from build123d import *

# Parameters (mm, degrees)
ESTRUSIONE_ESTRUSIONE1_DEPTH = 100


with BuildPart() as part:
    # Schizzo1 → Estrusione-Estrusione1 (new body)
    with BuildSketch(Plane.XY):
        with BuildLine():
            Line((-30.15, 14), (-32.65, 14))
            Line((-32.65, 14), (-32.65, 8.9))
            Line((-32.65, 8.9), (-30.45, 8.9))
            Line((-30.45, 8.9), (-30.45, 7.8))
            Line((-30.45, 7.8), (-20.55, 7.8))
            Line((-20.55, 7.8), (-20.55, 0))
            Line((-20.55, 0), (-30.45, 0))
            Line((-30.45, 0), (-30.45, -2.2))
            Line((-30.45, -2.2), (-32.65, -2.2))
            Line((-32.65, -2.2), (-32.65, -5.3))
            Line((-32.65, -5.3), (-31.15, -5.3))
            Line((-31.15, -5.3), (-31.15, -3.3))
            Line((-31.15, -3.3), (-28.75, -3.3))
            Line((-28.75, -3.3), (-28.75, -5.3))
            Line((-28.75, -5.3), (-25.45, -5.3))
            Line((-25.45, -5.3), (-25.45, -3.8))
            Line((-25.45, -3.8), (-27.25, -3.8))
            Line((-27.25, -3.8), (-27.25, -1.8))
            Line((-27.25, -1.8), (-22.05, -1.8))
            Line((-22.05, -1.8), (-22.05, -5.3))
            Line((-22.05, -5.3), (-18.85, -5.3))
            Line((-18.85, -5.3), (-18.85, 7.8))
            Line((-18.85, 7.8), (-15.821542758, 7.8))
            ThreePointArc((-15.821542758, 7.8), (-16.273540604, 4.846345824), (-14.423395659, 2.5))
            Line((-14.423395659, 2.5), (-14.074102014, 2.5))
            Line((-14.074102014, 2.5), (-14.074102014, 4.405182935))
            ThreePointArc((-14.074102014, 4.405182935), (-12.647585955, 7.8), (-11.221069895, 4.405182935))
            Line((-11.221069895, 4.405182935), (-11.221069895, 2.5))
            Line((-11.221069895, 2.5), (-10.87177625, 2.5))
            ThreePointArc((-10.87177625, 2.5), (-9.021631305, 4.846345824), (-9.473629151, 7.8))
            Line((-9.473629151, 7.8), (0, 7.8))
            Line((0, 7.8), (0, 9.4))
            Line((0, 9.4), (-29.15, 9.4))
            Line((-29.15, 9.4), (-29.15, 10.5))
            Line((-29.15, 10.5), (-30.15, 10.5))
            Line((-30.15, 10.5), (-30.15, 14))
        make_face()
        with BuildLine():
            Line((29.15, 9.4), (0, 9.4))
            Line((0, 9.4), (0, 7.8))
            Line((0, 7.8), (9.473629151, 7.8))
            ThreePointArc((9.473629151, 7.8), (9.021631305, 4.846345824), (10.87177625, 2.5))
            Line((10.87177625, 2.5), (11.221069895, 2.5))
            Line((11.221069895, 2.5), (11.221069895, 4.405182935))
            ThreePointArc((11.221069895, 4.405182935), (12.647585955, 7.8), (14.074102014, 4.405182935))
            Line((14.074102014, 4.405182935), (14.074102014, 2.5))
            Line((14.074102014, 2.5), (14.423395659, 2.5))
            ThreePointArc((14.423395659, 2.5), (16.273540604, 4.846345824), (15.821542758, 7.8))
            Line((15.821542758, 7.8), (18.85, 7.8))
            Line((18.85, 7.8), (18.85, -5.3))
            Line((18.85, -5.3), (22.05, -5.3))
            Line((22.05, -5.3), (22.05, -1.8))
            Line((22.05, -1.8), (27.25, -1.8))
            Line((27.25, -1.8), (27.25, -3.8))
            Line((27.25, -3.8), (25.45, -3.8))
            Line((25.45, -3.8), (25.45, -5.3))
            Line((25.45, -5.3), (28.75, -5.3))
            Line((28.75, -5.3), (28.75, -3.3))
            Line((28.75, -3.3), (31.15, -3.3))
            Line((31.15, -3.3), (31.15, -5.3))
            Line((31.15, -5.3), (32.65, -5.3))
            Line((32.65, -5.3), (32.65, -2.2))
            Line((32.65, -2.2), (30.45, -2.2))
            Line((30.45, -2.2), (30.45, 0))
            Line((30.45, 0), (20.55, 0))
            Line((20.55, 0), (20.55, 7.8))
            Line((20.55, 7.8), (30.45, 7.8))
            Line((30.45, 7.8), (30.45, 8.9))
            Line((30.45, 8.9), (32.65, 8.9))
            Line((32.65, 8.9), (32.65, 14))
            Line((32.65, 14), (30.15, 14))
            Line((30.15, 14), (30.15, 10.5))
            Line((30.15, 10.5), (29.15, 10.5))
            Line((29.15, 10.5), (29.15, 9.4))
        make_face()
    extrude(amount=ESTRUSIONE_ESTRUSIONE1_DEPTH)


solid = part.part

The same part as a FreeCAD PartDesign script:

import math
import FreeCAD as App
import Part
import Sketcher

V = App.Vector
Q = App.Units.Quantity

doc = App.newDocument("Part")
params = doc.addObject("Spreadsheet::Sheet", "Params")
for row, (alias, value) in enumerate([
    ("sketch1_width", "1 mm"),
    ("sketch1_height", "2 mm"),
    ("sketch1_radius", "3.75 mm"),
    ("sketch1_width2", "2.5 mm"),
    ("sketch1_width3", "2.2 mm"),
    ("pad1_length", "100 mm"),
], start=1):
    params.set(f"A{row}", alias)
    params.set(f"B{row}", "=" + value)
    params.setAlias(f"B{row}", alias)

body = doc.addObject("PartDesign::Body", "Body")

sketch1 = body.newObject("Sketcher::SketchObject", "Sketch")
sketch1.AttachmentSupport = (doc.getObject("XY_Plane"), [""])
sketch1.MapMode = "FlatFace"
sketch1.addGeometry([
    Part.LineSegment(V(-30.15, 14, 0), V(-32.65, 14, 0)),
    Part.LineSegment(V(-32.65, 14, 0), V(-32.65, 8.9, 0)),
    Part.LineSegment(V(-32.65, 8.9, 0), V(-30.45, 8.9, 0)),
    Part.LineSegment(V(-30.45, 8.9, 0), V(-30.45, 7.8, 0)),
    Part.LineSegment(V(-30.45, 7.8, 0), V(-20.55, 7.8, 0)),
    Part.LineSegment(V(-20.55, 7.8, 0), V(-20.55, 0, 0)),
    Part.LineSegment(V(-20.55, 0, 0), V(-30.45, 0, 0)),
    Part.LineSegment(V(-30.45, 0, 0), V(-30.45, -2.2, 0)),
    Part.LineSegment(V(-30.45, -2.2, 0), V(-32.65, -2.2, 0)),
    Part.LineSegment(V(-32.65, -2.2, 0), V(-32.65, -5.3, 0)),
    Part.LineSegment(V(-32.65, -5.3, 0), V(-31.15, -5.3, 0)),
    Part.LineSegment(V(-31.15, -5.3, 0), V(-31.15, -3.3, 0)),
    Part.LineSegment(V(-31.15, -3.3, 0), V(-28.75, -3.3, 0)),
    Part.LineSegment(V(-28.75, -3.3, 0), V(-28.75, -5.3, 0)),
    Part.LineSegment(V(-28.75, -5.3, 0), V(-25.45, -5.3, 0)),
    Part.LineSegment(V(-25.45, -5.3, 0), V(-25.45, -3.8, 0)),
    Part.LineSegment(V(-25.45, -3.8, 0), V(-27.25, -3.8, 0)),
    Part.LineSegment(V(-27.25, -3.8, 0), V(-27.25, -1.8, 0)),
    Part.LineSegment(V(-27.25, -1.8, 0), V(-22.05, -1.8, 0)),
    Part.LineSegment(V(-22.05, -1.8, 0), V(-22.05, -5.3, 0)),
    Part.LineSegment(V(-22.05, -5.3, 0), V(-18.85, -5.3, 0)),
    Part.LineSegment(V(-18.85, -5.3, 0), V(-18.85, 7.8, 0)),
    Part.LineSegment(V(-18.85, 7.8, 0), V(-15.82, 7.8, 0)),
    Part.ArcOfCircle(Part.Circle(V(-12.65, 5.8, 0), V(0, 0, 1), 3.75), math.radians(148), math.radians(242)),
    Part.LineSegment(V(-14.42, 2.5, 0), V(-14.07, 2.5, 0)),
    Part.LineSegment(V(-14.07, 2.5, 0), V(-14.07, 4.41, 0)),
    Part.ArcOfCircle(Part.Circle(V(-12.65, 5.8, 0), V(0, 0, 1), 2), math.radians(-44), math.radians(224)),
    Part.LineSegment(V(-11.22, 4.41, 0), V(-11.22, 2.5, 0)),
    Part.LineSegment(V(-11.22, 2.5, 0), V(-10.87, 2.5, 0)),
    Part.ArcOfCircle(Part.Circle(V(-12.65, 5.8, 0), V(0, 0, 1), 3.75), math.radians(-62), math.radians(32)),
    Part.LineSegment(V(-9.47, 7.8, 0), V(9.47, 7.8, 0)),
    Part.ArcOfCircle(Part.Circle(V(12.65, 5.8, 0), V(0, 0, 1), 3.75), math.radians(148), math.radians(242)),
    Part.LineSegment(V(10.87, 2.5, 0), V(11.22, 2.5, 0)),
    Part.LineSegment(V(11.22, 2.5, 0), V(11.22, 4.41, 0)),
    Part.ArcOfCircle(Part.Circle(V(12.65, 5.8, 0), V(0, 0, 1), 2), math.radians(-44), math.radians(224)),
    Part.LineSegment(V(14.07, 4.41, 0), V(14.07, 2.5, 0)),
    Part.LineSegment(V(14.07, 2.5, 0), V(14.42, 2.5, 0)),
    Part.ArcOfCircle(Part.Circle(V(12.65, 5.8, 0), V(0, 0, 1), 3.75), math.radians(-62), math.radians(32)),
    Part.LineSegment(V(15.82, 7.8, 0), V(18.85, 7.8, 0)),
    Part.LineSegment(V(18.85, 7.8, 0), V(18.85, -5.3, 0)),
    Part.LineSegment(V(18.85, -5.3, 0), V(22.05, -5.3, 0)),
    Part.LineSegment(V(22.05, -5.3, 0), V(22.05, -1.8, 0)),
    Part.LineSegment(V(22.05, -1.8, 0), V(27.25, -1.8, 0)),
    Part.LineSegment(V(27.25, -1.8, 0), V(27.25, -3.8, 0)),
    Part.LineSegment(V(27.25, -3.8, 0), V(25.45, -3.8, 0)),
    Part.LineSegment(V(25.45, -3.8, 0), V(25.45, -5.3, 0)),
    Part.LineSegment(V(25.45, -5.3, 0), V(28.75, -5.3, 0)),
    Part.LineSegment(V(28.75, -5.3, 0), V(28.75, -3.3, 0)),
    Part.LineSegment(V(28.75, -3.3, 0), V(31.15, -3.3, 0)),
    Part.LineSegment(V(31.15, -3.3, 0), V(31.15, -5.3, 0)),
    Part.LineSegment(V(31.15, -5.3, 0), V(32.65, -5.3, 0)),
    Part.LineSegment(V(32.65, -5.3, 0), V(32.65, -2.2, 0)),
    Part.LineSegment(V(32.65, -2.2, 0), V(30.45, -2.2, 0)),
    Part.LineSegment(V(30.45, -2.2, 0), V(30.45, 0, 0)),
    Part.LineSegment(V(30.45, 0, 0), V(20.55, 0, 0)),
    Part.LineSegment(V(20.55, 0, 0), V(20.55, 7.8, 0)),
    Part.LineSegment(V(20.55, 7.8, 0), V(30.45, 7.8, 0)),
    Part.LineSegment(V(30.45, 7.8, 0), V(30.45, 8.9, 0)),
    Part.LineSegment(V(30.45, 8.9, 0), V(32.65, 8.9, 0)),
    Part.LineSegment(V(32.65, 8.9, 0), V(32.65, 14, 0)),
    Part.LineSegment(V(32.65, 14, 0), V(30.15, 14, 0)),
    Part.LineSegment(V(30.15, 14, 0), V(30.15, 10.5, 0)),
    Part.LineSegment(V(30.15, 10.5, 0), V(29.15, 10.5, 0)),
    Part.LineSegment(V(29.15, 10.5, 0), V(29.15, 9.4, 0)),
    Part.LineSegment(V(29.15, 9.4, 0), V(-29.15, 9.4, 0)),
    Part.LineSegment(V(-29.15, 9.4, 0), V(-29.15, 10.5, 0)),
    Part.LineSegment(V(-29.15, 10.5, 0), V(-30.15, 10.5, 0)),
    Part.LineSegment(V(-30.15, 10.5, 0), V(-30.15, 14, 0)),
], False)
sketch1.addConstraint([
    Sketcher.Constraint("Coincident", 0, 2, 1, 1),
    Sketcher.Constraint("Coincident", 1, 2, 2, 1),
    Sketcher.Constraint("Coincident", 2, 2, 3, 1),
    Sketcher.Constraint("Coincident", 3, 2, 4, 1),
    Sketcher.Constraint("Coincident", 4, 2, 5, 1),
    Sketcher.Constraint("Coincident", 5, 2, 6, 1),
    Sketcher.Constraint("Coincident", 6, 2, 7, 1),
    Sketcher.Constraint("Coincident", 7, 2, 8, 1),
    Sketcher.Constraint("Coincident", 8, 2, 9, 1),
    Sketcher.Constraint("Coincident", 9, 2, 10, 1),
    Sketcher.Constraint("Coincident", 10, 2, 11, 1),
    Sketcher.Constraint("Coincident", 11, 2, 12, 1),
    Sketcher.Constraint("Coincident", 12, 2, 13, 1),
    Sketcher.Constraint("Coincident", 13, 2, 14, 1),
    Sketcher.Constraint("Coincident", 14, 2, 15, 1),
    Sketcher.Constraint("Coincident", 15, 2, 16, 1),
    Sketcher.Constraint("Coincident", 16, 2, 17, 1),
    Sketcher.Constraint("Coincident", 17, 2, 18, 1),
    Sketcher.Constraint("Coincident", 18, 2, 19, 1),
    Sketcher.Constraint("Coincident", 19, 2, 20, 1),
    Sketcher.Constraint("Coincident", 20, 2, 21, 1),
    Sketcher.Constraint("Coincident", 21, 2, 22, 1),
    Sketcher.Constraint("Coincident", 22, 2, 23, 1),
    Sketcher.Constraint("Coincident", 23, 2, 24, 1),
    Sketcher.Constraint("Coincident", 24, 2, 25, 1),
    Sketcher.Constraint("Coincident", 25, 2, 26, 2),
    Sketcher.Constraint("Coincident", 26, 1, 27, 1),
    Sketcher.Constraint("Coincident", 27, 2, 28, 1),
    Sketcher.Constraint("Coincident", 28, 2, 29, 1),
    Sketcher.Constraint("Coincident", 29, 2, 30, 1),
    Sketcher.Constraint("Coincident", 30, 2, 31, 1),
    Sketcher.Constraint("Coincident", 31, 2, 32, 1),
    Sketcher.Constraint("Coincident", 32, 2, 33, 1),
    Sketcher.Constraint("Coincident", 33, 2, 34, 2),
    Sketcher.Constraint("Coincident", 34, 1, 35, 1),
    Sketcher.Constraint("Coincident", 35, 2, 36, 1),
    Sketcher.Constraint("Coincident", 36, 2, 37, 1),
    Sketcher.Constraint("Coincident", 37, 2, 38, 1),
    Sketcher.Constraint("Coincident", 38, 2, 39, 1),
    Sketcher.Constraint("Coincident", 39, 2, 40, 1),
    Sketcher.Constraint("Coincident", 40, 2, 41, 1),
    Sketcher.Constraint("Coincident", 41, 2, 42, 1),
    Sketcher.Constraint("Coincident", 42, 2, 43, 1),
    Sketcher.Constraint("Coincident", 43, 2, 44, 1),
    Sketcher.Constraint("Coincident", 44, 2, 45, 1),
    Sketcher.Constraint("Coincident", 45, 2, 46, 1),
    Sketcher.Constraint("Coincident", 46, 2, 47, 1),
    Sketcher.Constraint("Coincident", 47, 2, 48, 1),
    Sketcher.Constraint("Coincident", 48, 2, 49, 1),
    Sketcher.Constraint("Coincident", 49, 2, 50, 1),
    Sketcher.Constraint("Coincident", 50, 2, 51, 1),
    Sketcher.Constraint("Coincident", 51, 2, 52, 1),
    Sketcher.Constraint("Coincident", 52, 2, 53, 1),
    Sketcher.Constraint("Coincident", 53, 2, 54, 1),
    Sketcher.Constraint("Coincident", 54, 2, 55, 1),
    Sketcher.Constraint("Coincident", 55, 2, 56, 1),
    Sketcher.Constraint("Coincident", 56, 2, 57, 1),
    Sketcher.Constraint("Coincident", 57, 2, 58, 1),
    Sketcher.Constraint("Coincident", 58, 2, 59, 1),
    Sketcher.Constraint("Coincident", 59, 2, 60, 1),
    Sketcher.Constraint("Coincident", 60, 2, 61, 1),
    Sketcher.Constraint("Coincident", 61, 2, 62, 1),
    Sketcher.Constraint("Coincident", 62, 2, 63, 1),
    Sketcher.Constraint("Coincident", 63, 2, 64, 1),
    Sketcher.Constraint("Coincident", 64, 2, 65, 1),
    Sketcher.Constraint("Coincident", 65, 2, 66, 1),
    Sketcher.Constraint("Coincident", 66, 2, 67, 1),
    Sketcher.Constraint("Coincident", 67, 2, 0, 1),
    Sketcher.Constraint("Horizontal", 0),
    Sketcher.Constraint("Vertical", 1),
    Sketcher.Constraint("Horizontal", 2),
    Sketcher.Constraint("Vertical", 3),
    Sketcher.Constraint("Horizontal", 4),
    Sketcher.Constraint("Vertical", 5),
    Sketcher.Constraint("Horizontal", 6),
    Sketcher.Constraint("Vertical", 7),
    Sketcher.Constraint("Horizontal", 8),
    Sketcher.Constraint("Vertical", 9),
    Sketcher.Constraint("Horizontal", 10),
    Sketcher.Constraint("Vertical", 11),
    Sketcher.Constraint("Horizontal", 12),
    Sketcher.Constraint("Vertical", 13),
    Sketcher.Constraint("Horizontal", 14),
    Sketcher.Constraint("Vertical", 15),
    Sketcher.Constraint("Horizontal", 16),
    Sketcher.Constraint("Vertical", 17),
    Sketcher.Constraint("Horizontal", 18),
    Sketcher.Constraint("Vertical", 19),
    Sketcher.Constraint("Horizontal", 20),
    Sketcher.Constraint("Vertical", 21),
    Sketcher.Constraint("Horizontal", 22),
    Sketcher.Constraint("Horizontal", 24),
    Sketcher.Constraint("Vertical", 25),
    Sketcher.Constraint("Vertical", 27),
    Sketcher.Constraint("Horizontal", 28),
    Sketcher.Constraint("Horizontal", 30),
    Sketcher.Constraint("Horizontal", 32),
    Sketcher.Constraint("Vertical", 33),
    Sketcher.Constraint("Vertical", 35),
    Sketcher.Constraint("Horizontal", 36),
    Sketcher.Constraint("Horizontal", 38),
    Sketcher.Constraint("Vertical", 39),
    Sketcher.Constraint("Horizontal", 40),
    Sketcher.Constraint("Vertical", 41),
    Sketcher.Constraint("Horizontal", 42),
    Sketcher.Constraint("Vertical", 43),
    Sketcher.Constraint("Horizontal", 44),
    Sketcher.Constraint("Vertical", 45),
    Sketcher.Constraint("Horizontal", 46),
    Sketcher.Constraint("Vertical", 47),
    Sketcher.Constraint("Horizontal", 48),
    Sketcher.Constraint("Vertical", 49),
    Sketcher.Constraint("Horizontal", 50),
    Sketcher.Constraint("Vertical", 51),
    Sketcher.Constraint("Horizontal", 52),
    Sketcher.Constraint("Vertical", 53),
    Sketcher.Constraint("Horizontal", 54),
    Sketcher.Constraint("Vertical", 55),
    Sketcher.Constraint("Horizontal", 56),
    Sketcher.Constraint("Vertical", 57),
    Sketcher.Constraint("Horizontal", 58),
    Sketcher.Constraint("Vertical", 59),
    Sketcher.Constraint("Horizontal", 60),
    Sketcher.Constraint("Vertical", 61),
    Sketcher.Constraint("Horizontal", 62),
    Sketcher.Constraint("Vertical", 63),
    Sketcher.Constraint("Horizontal", 64),
    Sketcher.Constraint("Vertical", 65),
    Sketcher.Constraint("Horizontal", 66),
    Sketcher.Constraint("Vertical", 67),
    Sketcher.Constraint("Coincident", 26, 3, 23, 3),
    Sketcher.Constraint("Coincident", 29, 3, 23, 3),
    Sketcher.Constraint("Coincident", 34, 3, 31, 3),
    Sketcher.Constraint("Coincident", 37, 3, 31, 3),
    Sketcher.Constraint("Equal", 23, 29),
    Sketcher.Constraint("Equal", 29, 31),
    Sketcher.Constraint("Equal", 26, 34),
    Sketcher.Constraint("Equal", 31, 37),
    Sketcher.Constraint("Symmetric", 6, 2, 53, 2, -1, 1),
    Sketcher.Constraint("Symmetric", 23, 3, 31, 3, -2),
    Sketcher.Constraint("Symmetric", 27, 2, 32, 2, -2),
    Sketcher.Constraint("Symmetric", 24, 2, 35, 2, -2),
    Sketcher.Constraint("Symmetric", 21, 2, 38, 2, -2),
    Sketcher.Constraint("Symmetric", 19, 2, 40, 2, -2),
    Sketcher.Constraint("Symmetric", 17, 2, 42, 2, -2),
    Sketcher.Constraint("Symmetric", 15, 2, 44, 2, -2),
    Sketcher.Constraint("Symmetric", 13, 2, 46, 2, -2),
    Sketcher.Constraint("Symmetric", 11, 2, 48, 2, -2),
    Sketcher.Constraint("Symmetric", 9, 2, 50, 2, -2),
    Sketcher.Constraint("Symmetric", 5, 2, 54, 2, -2),
    Sketcher.Constraint("Symmetric", 3, 2, 56, 2, -2),
    Sketcher.Constraint("Symmetric", 1, 2, 58, 2, -2),
    Sketcher.Constraint("Symmetric", 62, 2, 65, 2, -2),
    Sketcher.Constraint("Symmetric", 60, 2, 67, 2, -2),
    Sketcher.Constraint("Horizontal", 10, 2, 13, 2),
    Sketcher.Constraint("Horizontal", 14, 2, 19, 2),
    Sketcher.Constraint("Horizontal", 4, 2, 21, 2),
    Sketcher.Constraint("Horizontal", 25, 2, 26, 1),
    Sketcher.Constraint("Horizontal", 24, 2, 27, 2),
    Sketcher.Constraint("Horizontal", 22, 2, 29, 2),
    Sketcher.Constraint("Horizontal", 8, 2, 51, 2),
    Sketcher.Constraint("Vertical", 3, 2, 6, 2),
    Sketcher.Constraint("Vertical", 1, 2, 8, 2),
    Sketcher.Constraint("Equal", 58, 7),
    Sketcher.Constraint("Equal", 50, 15),
    Sketcher.Constraint("Equal", 13, 17),
    Sketcher.Constraint("Equal", 41, 61),
    Sketcher.Constraint("Equal", 57, 63),
    Sketcher.Constraint("DistanceX", 62, 2, 62, 1, Q("1 mm")),
    Sketcher.Constraint("DistanceY", 11, 1, 11, 2, Q("2 mm")),
    Sketcher.Constraint("Radius", 23, Q("3.75 mm")),
    Sketcher.Constraint("DistanceX", 0, 2, 0, 1, Q("2.5 mm")),
    Sketcher.Constraint("DistanceX", 2, 1, 2, 2, Q("2.2 mm")),
    Sketcher.Constraint("DistanceX", 4, 1, 4, 2, Q("9.9 mm")),
    Sketcher.Constraint("DistanceX", 10, 1, 10, 2, Q("1.5 mm")),
    Sketcher.Constraint("DistanceX", 12, 1, 12, 2, Q("2.4 mm")),
    Sketcher.Constraint("DistanceX", 14, 1, 14, 2, Q("3.3 mm")),
    Sketcher.Constraint("DistanceX", 16, 2, 16, 1, Q("1.8 mm")),
    Sketcher.Constraint("DistanceX", 18, 1, 18, 2, Q("5.2 mm")),
    Sketcher.Constraint("DistanceX", 20, 1, 20, 2, Q("3.2 mm")),
    Sketcher.Constraint("DistanceX", 64, 2, 64, 1, Q("58.3 mm")),
    Sketcher.Constraint("DistanceY", 1, 2, 1, 1, Q("5.1 mm")),
    Sketcher.Constraint("DistanceY", 3, 2, 3, 1, Q("1.1 mm")),
    Sketcher.Constraint("DistanceY", 5, 2, 5, 1, Q("7.8 mm")),
    Sketcher.Constraint("DistanceY", 9, 2, 9, 1, Q("3.1 mm")),
    Sketcher.Constraint("DistanceY", -1, 1, 23, 2, Q("2.5 mm")),
    Sketcher.Constraint("Radius", 26, Q("1.997122 mm")),
    Sketcher.Constraint("DistanceX", 30, 1, 30, 2, Q("18.947258 mm")),
    Sketcher.Constraint("DistanceX", 22, 1, 22, 2, Q("3.028457 mm")),
    Sketcher.Constraint("DistanceX", 24, 1, 24, 2, Q("0.349294 mm")),
])
sketch1.setExpression("Constraints[168]", "Params.sketch1_width")
sketch1.setExpression("Constraints[169]", "Params.sketch1_height")
sketch1.setExpression("Constraints[170]", "Params.sketch1_radius")
sketch1.setExpression("Constraints[171]", "Params.sketch1_width2")
sketch1.setExpression("Constraints[172]", "Params.sketch1_width3")
pad1 = body.newObject("PartDesign::Pad", "Pad")
pad1.Profile = sketch1
pad1.setExpression("Length", "Params.pad1_length")

doc.recompute()
